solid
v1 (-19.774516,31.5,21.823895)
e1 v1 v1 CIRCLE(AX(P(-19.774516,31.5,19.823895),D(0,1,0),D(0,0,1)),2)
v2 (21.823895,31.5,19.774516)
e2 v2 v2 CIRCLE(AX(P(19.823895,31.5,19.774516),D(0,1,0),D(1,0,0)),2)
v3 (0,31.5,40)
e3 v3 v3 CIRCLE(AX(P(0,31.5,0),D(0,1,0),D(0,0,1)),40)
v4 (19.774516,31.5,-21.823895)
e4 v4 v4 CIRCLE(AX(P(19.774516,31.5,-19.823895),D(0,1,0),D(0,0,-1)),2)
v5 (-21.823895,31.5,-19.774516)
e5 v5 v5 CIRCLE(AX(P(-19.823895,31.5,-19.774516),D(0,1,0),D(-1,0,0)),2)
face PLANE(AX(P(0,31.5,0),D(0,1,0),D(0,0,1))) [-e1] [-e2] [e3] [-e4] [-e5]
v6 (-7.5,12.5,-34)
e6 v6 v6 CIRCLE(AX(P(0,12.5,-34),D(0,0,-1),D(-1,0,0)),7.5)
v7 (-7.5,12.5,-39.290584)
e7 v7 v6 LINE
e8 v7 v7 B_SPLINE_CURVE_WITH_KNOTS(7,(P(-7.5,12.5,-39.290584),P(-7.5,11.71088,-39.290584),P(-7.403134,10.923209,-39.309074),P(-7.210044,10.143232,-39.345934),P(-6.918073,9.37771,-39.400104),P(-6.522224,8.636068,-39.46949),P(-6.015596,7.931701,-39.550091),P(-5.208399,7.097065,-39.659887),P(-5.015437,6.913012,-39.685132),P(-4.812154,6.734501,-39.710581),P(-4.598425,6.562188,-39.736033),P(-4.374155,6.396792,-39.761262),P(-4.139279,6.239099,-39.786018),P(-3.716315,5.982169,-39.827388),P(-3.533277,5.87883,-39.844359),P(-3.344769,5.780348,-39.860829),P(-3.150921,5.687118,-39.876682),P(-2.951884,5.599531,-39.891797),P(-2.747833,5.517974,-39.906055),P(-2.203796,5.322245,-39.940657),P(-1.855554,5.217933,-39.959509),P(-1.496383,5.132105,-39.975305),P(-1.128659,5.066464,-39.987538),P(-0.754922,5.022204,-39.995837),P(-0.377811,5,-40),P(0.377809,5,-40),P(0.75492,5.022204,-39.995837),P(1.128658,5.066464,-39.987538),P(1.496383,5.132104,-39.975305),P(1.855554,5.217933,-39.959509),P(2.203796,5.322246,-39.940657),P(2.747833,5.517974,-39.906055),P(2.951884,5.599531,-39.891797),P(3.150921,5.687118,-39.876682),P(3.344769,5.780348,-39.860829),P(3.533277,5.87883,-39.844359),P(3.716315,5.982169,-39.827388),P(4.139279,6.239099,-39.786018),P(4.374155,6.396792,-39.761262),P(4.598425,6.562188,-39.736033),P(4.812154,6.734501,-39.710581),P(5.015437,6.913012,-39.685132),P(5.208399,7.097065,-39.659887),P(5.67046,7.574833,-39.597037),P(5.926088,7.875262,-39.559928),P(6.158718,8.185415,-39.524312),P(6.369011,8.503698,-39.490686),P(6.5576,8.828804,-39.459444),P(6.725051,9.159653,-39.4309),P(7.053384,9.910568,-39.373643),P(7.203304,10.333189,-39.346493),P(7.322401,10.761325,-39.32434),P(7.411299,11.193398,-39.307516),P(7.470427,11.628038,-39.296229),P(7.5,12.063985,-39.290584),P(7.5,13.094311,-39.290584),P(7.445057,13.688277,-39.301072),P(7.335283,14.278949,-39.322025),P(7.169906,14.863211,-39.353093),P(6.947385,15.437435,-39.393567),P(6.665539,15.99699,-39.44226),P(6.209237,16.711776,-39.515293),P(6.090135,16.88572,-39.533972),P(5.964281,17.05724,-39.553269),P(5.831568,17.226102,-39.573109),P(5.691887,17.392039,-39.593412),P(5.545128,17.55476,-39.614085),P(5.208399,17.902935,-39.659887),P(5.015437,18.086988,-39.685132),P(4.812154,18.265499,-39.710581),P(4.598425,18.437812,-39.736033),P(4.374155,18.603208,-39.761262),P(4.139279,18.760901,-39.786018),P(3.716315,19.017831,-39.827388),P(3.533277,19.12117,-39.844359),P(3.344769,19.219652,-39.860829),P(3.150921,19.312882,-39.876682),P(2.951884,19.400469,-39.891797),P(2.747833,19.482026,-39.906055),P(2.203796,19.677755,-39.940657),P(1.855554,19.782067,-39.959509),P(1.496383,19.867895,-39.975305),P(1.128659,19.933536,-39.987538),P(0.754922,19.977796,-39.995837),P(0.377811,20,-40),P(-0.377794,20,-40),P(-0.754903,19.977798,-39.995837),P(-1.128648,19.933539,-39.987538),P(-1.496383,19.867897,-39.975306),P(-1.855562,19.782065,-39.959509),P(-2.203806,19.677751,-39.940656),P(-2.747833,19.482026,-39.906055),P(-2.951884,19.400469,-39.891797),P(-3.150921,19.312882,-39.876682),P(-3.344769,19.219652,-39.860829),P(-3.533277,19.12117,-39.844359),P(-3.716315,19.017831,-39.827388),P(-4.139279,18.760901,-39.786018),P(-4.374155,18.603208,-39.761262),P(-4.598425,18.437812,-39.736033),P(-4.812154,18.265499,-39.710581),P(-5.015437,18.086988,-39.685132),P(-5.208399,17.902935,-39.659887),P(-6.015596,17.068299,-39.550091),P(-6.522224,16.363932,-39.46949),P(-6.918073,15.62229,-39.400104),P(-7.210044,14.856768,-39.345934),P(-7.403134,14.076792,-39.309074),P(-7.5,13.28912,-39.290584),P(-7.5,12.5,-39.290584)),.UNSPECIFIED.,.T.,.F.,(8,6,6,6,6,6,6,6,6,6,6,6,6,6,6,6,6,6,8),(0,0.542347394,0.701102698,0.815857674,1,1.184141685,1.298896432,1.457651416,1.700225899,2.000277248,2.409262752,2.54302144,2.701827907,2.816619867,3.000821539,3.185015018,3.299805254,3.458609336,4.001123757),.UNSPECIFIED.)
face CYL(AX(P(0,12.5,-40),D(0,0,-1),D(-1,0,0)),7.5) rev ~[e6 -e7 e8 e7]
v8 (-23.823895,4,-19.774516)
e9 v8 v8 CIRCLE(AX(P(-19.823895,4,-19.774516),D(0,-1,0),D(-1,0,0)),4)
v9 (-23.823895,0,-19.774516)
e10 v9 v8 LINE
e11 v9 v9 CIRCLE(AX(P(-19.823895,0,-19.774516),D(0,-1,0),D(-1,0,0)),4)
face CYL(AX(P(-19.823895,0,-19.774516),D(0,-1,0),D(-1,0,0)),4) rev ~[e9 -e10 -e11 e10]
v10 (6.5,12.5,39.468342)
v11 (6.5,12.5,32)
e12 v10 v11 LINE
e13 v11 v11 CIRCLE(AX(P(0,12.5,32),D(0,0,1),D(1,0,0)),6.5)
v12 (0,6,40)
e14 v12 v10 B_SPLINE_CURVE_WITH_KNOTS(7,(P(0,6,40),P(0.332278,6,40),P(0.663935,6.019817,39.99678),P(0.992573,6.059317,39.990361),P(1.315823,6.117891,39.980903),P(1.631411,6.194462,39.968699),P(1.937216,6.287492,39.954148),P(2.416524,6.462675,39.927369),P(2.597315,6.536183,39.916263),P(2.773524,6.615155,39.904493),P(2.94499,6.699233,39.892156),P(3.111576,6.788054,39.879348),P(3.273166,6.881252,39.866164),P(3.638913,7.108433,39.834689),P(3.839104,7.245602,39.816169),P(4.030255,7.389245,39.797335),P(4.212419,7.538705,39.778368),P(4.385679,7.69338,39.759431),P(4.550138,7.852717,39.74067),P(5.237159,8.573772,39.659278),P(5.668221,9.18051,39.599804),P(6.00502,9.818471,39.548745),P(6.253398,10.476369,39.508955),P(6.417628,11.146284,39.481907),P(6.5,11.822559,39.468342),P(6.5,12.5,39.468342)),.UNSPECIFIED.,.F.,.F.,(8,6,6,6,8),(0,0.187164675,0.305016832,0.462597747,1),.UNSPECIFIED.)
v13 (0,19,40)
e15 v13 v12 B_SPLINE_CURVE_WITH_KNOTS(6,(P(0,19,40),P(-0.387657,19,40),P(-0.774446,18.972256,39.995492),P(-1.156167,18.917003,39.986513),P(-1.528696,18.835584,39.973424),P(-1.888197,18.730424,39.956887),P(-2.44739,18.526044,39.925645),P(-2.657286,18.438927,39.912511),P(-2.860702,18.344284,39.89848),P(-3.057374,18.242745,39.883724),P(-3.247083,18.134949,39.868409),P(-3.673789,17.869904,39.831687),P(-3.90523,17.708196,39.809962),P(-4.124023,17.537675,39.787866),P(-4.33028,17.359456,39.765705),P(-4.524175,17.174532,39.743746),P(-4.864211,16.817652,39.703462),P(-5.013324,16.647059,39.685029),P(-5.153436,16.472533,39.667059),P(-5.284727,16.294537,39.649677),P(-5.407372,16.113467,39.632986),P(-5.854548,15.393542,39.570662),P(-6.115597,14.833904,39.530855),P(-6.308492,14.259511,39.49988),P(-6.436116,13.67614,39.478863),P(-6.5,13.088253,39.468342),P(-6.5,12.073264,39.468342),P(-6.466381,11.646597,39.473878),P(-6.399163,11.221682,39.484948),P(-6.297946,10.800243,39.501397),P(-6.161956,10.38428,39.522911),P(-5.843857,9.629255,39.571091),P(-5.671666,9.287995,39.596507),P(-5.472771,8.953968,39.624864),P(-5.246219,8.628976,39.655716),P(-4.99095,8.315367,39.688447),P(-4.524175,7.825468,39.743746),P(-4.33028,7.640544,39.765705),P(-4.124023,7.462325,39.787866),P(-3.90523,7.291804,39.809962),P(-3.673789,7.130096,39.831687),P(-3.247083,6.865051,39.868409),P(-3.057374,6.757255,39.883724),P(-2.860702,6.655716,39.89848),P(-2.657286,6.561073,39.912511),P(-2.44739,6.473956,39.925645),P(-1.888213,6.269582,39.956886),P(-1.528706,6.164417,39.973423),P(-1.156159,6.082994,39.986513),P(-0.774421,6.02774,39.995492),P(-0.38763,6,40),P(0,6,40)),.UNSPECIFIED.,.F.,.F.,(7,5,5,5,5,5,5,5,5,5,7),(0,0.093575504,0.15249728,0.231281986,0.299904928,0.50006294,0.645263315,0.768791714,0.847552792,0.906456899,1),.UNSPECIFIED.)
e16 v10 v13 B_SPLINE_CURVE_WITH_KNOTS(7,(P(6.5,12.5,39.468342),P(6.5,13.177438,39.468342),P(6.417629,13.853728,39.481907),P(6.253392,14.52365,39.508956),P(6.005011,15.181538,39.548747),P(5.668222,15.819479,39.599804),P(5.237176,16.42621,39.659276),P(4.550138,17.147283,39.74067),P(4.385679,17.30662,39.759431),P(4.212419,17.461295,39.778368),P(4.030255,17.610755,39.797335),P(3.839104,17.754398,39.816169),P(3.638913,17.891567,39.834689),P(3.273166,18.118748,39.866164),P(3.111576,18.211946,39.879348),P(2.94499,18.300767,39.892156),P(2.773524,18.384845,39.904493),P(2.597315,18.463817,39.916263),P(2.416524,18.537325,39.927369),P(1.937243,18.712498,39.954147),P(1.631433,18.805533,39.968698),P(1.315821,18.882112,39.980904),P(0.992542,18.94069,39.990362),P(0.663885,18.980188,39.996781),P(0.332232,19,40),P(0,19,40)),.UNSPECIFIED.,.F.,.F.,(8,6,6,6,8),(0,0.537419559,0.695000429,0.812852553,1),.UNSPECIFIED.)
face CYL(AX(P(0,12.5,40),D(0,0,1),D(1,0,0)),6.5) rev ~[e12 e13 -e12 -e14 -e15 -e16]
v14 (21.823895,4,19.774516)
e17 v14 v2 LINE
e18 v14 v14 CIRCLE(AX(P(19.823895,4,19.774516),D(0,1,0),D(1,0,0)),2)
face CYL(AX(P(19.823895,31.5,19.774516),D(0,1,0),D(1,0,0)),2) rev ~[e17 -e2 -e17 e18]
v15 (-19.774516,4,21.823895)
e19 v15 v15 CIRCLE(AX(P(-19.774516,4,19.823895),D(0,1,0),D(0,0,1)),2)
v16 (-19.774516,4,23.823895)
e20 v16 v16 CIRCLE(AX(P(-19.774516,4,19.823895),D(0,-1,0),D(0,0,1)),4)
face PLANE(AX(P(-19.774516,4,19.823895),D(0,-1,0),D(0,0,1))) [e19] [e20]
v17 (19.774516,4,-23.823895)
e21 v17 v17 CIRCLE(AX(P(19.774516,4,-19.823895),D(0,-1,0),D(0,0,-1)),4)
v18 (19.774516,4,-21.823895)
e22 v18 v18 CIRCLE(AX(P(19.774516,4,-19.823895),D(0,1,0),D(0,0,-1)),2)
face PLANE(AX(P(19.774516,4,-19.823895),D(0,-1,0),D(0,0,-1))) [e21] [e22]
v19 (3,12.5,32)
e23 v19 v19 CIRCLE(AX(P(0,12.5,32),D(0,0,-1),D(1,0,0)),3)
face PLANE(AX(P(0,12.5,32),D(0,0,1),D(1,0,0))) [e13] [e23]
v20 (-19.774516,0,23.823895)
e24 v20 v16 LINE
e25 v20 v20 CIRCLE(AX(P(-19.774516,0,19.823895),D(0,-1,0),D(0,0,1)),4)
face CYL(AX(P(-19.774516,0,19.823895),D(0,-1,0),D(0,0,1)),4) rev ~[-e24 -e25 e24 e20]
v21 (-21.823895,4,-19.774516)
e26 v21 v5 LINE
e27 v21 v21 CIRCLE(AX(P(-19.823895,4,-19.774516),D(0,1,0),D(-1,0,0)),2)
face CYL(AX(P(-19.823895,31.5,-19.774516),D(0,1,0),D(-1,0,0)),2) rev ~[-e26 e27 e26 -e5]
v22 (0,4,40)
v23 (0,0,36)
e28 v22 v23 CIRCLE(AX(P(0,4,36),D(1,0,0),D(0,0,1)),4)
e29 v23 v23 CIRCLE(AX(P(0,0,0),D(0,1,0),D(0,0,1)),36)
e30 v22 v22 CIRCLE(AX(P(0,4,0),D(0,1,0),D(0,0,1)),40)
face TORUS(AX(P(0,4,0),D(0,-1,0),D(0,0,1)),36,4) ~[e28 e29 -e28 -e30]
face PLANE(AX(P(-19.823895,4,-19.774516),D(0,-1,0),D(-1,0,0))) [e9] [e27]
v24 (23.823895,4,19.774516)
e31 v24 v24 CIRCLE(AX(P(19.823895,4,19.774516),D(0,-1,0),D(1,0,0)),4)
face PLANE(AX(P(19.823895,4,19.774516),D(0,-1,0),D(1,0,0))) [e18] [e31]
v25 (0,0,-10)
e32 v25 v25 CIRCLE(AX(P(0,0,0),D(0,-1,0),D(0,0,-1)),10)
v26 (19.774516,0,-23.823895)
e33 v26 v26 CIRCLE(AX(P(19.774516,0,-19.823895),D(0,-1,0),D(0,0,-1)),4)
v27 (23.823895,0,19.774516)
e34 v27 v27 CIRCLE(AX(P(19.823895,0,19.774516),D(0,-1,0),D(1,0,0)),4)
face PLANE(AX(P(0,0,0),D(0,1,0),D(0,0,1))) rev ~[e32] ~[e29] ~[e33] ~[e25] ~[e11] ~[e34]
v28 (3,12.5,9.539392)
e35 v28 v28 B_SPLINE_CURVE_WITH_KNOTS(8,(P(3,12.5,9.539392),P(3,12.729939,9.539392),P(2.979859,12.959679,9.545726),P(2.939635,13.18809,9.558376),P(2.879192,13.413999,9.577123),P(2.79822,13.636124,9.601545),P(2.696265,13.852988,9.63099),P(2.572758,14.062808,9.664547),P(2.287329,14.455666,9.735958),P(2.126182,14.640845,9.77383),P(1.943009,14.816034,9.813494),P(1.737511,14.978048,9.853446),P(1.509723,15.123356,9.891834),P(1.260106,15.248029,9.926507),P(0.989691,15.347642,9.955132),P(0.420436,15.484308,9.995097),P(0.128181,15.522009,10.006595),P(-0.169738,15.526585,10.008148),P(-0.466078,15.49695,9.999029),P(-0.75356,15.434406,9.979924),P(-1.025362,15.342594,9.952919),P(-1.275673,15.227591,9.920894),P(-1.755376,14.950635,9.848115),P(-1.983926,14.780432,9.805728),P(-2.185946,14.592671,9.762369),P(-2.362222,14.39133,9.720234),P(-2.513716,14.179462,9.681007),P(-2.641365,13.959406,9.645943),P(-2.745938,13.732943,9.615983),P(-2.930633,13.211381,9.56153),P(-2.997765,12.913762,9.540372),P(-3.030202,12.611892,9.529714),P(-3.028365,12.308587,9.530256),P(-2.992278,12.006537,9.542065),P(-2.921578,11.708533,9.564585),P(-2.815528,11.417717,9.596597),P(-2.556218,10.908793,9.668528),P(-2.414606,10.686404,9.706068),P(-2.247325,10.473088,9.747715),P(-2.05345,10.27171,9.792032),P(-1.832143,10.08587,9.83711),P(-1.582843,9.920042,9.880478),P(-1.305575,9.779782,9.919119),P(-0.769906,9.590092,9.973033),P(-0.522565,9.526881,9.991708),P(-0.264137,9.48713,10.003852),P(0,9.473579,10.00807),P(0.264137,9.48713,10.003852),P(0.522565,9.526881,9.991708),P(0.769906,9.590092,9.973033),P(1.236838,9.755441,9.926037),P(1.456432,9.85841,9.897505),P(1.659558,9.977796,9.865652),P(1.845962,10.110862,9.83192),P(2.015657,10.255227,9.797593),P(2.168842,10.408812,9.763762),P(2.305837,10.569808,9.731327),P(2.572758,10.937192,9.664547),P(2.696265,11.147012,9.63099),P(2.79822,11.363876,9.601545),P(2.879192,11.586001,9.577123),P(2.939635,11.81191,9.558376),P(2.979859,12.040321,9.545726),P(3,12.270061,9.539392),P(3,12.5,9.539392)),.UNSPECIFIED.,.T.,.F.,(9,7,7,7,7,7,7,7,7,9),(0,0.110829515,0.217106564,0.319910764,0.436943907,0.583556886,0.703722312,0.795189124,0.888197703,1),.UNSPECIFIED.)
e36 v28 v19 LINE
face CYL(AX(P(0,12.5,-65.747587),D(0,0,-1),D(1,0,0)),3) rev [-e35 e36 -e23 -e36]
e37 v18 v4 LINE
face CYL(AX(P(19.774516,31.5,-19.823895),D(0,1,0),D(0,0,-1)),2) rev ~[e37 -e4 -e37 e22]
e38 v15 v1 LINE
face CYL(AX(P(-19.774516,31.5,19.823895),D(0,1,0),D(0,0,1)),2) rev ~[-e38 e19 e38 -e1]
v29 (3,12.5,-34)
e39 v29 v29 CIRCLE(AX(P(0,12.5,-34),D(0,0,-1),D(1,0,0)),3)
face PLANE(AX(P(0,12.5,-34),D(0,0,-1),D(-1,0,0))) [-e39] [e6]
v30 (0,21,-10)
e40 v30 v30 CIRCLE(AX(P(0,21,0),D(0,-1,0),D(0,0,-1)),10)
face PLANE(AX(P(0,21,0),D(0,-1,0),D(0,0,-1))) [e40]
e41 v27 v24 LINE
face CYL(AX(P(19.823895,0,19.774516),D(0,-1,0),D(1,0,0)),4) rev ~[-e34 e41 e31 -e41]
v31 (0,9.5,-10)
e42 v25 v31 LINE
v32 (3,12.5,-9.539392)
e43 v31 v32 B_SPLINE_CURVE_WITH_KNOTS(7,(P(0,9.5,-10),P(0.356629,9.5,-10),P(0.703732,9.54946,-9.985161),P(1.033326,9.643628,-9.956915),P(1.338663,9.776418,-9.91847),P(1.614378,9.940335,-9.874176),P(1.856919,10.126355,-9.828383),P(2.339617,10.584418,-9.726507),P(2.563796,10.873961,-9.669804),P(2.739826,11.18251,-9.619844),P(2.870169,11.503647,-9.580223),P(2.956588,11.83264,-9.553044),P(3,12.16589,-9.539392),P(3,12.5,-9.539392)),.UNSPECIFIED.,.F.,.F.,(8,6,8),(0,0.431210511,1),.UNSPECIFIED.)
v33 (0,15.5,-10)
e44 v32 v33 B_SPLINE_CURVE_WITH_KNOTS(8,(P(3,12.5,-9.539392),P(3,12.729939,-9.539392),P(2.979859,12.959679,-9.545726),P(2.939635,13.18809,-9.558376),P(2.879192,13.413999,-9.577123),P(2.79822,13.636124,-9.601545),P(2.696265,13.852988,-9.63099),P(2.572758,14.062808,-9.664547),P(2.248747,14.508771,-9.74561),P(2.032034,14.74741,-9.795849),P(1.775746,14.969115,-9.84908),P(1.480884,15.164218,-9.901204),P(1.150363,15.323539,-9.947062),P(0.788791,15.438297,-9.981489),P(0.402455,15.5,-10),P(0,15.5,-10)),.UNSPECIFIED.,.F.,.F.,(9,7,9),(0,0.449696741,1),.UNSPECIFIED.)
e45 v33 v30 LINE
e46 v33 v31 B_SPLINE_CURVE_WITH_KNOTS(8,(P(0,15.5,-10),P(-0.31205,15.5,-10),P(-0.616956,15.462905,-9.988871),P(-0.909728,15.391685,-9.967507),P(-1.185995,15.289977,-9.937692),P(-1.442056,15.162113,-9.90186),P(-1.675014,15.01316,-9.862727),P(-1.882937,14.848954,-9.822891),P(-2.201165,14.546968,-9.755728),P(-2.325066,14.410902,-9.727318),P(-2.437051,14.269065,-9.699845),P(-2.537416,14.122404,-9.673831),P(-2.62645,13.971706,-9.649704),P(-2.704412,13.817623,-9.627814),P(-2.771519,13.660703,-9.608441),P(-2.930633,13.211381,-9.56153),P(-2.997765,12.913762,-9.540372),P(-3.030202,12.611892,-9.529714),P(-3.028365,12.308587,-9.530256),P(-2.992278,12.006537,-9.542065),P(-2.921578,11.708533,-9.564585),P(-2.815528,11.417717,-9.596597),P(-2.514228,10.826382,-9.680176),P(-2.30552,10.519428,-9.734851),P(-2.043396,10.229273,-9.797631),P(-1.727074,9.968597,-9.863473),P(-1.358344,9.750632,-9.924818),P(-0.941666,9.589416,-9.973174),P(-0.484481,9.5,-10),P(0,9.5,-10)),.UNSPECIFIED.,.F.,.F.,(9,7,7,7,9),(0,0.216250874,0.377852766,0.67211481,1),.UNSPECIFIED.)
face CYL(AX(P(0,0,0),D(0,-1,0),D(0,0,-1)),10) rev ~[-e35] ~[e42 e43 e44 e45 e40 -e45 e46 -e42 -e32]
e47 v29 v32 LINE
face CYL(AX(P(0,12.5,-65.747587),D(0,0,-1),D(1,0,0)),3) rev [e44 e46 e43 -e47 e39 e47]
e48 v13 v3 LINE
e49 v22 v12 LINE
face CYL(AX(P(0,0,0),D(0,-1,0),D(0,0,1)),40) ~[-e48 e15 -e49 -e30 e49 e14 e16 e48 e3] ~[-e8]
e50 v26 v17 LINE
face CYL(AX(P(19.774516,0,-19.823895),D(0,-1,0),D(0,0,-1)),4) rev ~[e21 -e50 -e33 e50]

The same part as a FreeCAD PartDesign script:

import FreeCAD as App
import Part
import Sketcher
from FreeCAD import Vector
Q = App.Units.Quantity


def edges_at(feature, points):
    """Names of the edges that pass closest to the given points."""
    edges = feature.Shape.Edges
    near = lambda p: min(range(len(edges)), key=lambda i: edges[i].distToShape(Part.Vertex(*p))[0])
    return sorted({f"Edge{near(p) + 1}" for p in points})

doc = App.newDocument("Part")
params = doc.addObject("Spreadsheet::Sheet", "Params")
for row, (alias, value) in enumerate([
    ("sketch1_diameter", "80 mm"),
    ("pad1_length", "31.5 mm"),
    ("sketch2_diameter", "6 mm"),
    ("sketch3_diameter", "20 mm"),
    ("pocket2_length", "21 mm"),
    ("sketch4_diameter", "13 mm"),
    ("pocket3_length", "8 mm"),
    ("sketch5_diameter", "15 mm"),
    ("pocket4_length", "6 mm"),
    ("sketch6_diameter", "4 mm"),
    ("pocket5_length", "131.495174 mm"),
    ("sketch7_diameter", "8 mm"),
    ("pocket6_length", "4 mm"),
    ("fillet_radius", "4 mm"),
], start=1):
    params.set(f"A{row}", alias)
    params.set(f"B{row}", "=" + value)
    params.setAlias(f"B{row}", alias)

body = doc.addObject("PartDesign::Body", "Body")

# Sketch on XZ plane
sketch1 = doc.addObject("Sketcher::SketchObject", "Sketch")
body.addObject(sketch1)
sketch1.AttachmentSupport = (doc.XZ_Plane, [""])
sketch1.MapMode = "FlatFace"
sketch1.addGeometry(Part.Circle(Vector(0, 0, 0), Vector(0, 0, 1), 40), False)
sketch1.addConstraint(Sketcher.Constraint("Coincident", 0, 3, -1, 1))
sketch1.addConstraint(Sketcher.Constraint("Diameter", 0, Q("80 mm")))
sketch1.setExpression("Constraints[1]", "Params.sketch1_diameter")
pad1 = doc.addObject("PartDesign::Pad", "Pad")
body.addObject(pad1)
pad1.Profile = sketch1
pad1.setExpression("Length", "Params.pad1_length")
pad1.Reversed = True

# Sketch on XY plane
sketch2 = doc.addObject("Sketcher::SketchObject", "Sketch001")
body.addObject(sketch2)
sketch2.AttachmentSupport = (doc.XY_Plane, [""])
sketch2.MapMode = "FlatFace"
sketch2.addGeometry(Part.Circle(Vector(0, 12.5, 0), Vector(0, 0, 1), 3), False)
sketch2.addConstraint(Sketcher.Constraint("PointOnObject", 0, 3, -2))
sketch2.addConstraint(Sketcher.Constraint("Diameter", 0, Q("6 mm")))
sketch2.addConstraint(Sketcher.Constraint("DistanceY", -1, 1, 0, 3, Q("12.5 mm")))
sketch2.setExpression("Constraints[1]", "Params.sketch2_diameter")
pocket1 = doc.addObject("PartDesign::Pocket", "Pocket")
body.addObject(pocket1)
pocket1.Profile = sketch2
pocket1.Type = "ThroughAll"
pocket1.Midplane = True

# Sketch on XZ plane
sketch3 = doc.addObject("Sketcher::SketchObject", "Sketch002")
body.addObject(sketch3)
sketch3.AttachmentSupport = (doc.XZ_Plane, [""])
sketch3.MapMode = "FlatFace"
sketch3.addGeometry(Part.Circle(Vector(0, 0, 0), Vector(0, 0, 1), 10), False)
sketch3.addConstraint(Sketcher.Constraint("Coincident", 0, 3, -1, 1))
sketch3.addConstraint(Sketcher.Constraint("Diameter", 0, Q("20 mm")))
sketch3.setExpression("Constraints[1]", "Params.sketch3_diameter")
pocket2 = doc.addObject("PartDesign::Pocket", "Pocket001")
body.addObject(pocket2)
pocket2.Profile = sketch3
pocket2.setExpression("Length", "Params.pocket2_length")

# Sketch on XY plane
sketch4 = doc.addObject("Sketcher::SketchObject", "Sketch003")
body.addObject(sketch4)
sketch4.AttachmentSupport = (doc.XY_Plane, [""])
sketch4.MapMode = "FlatFace"
sketch4.AttachmentOffset = App.Placement(Vector(0, 0, 40), App.Rotation())
sketch4.addGeometry(Part.Circle(Vector(0, 12, 0), Vector(0, 0, 1), 6), False)
sketch4.addConstraint(Sketcher.Constraint("PointOnObject", 0, 3, -2))
sketch4.addConstraint(Sketcher.Constraint("Diameter", 0, Q("13 mm")))
sketch4.addConstraint(Sketcher.Constraint("DistanceY", -1, 1, 0, 3, Q("12.5 mm")))
sketch4.setExpression("Constraints[1]", "Params.sketch4_diameter")
pocket3 = doc.addObject("PartDesign::Pocket", "Pocket002")
body.addObject(pocket3)
pocket3.Profile = sketch4
pocket3.setExpression("Length", "Params.pocket3_length")

# Sketch on XY plane
sketch5 = doc.addObject("Sketcher::SketchObject", "Sketch004")
body.addObject(sketch5)
sketch5.AttachmentSupport = (doc.XY_Plane, [""])
sketch5.MapMode = "FlatFace"
sketch5.AttachmentOffset = App.Placement(Vector(0, 0, -40), App.Rotation())
sketch5.addGeometry(Part.Circle(Vector(0, 12, 0), Vector(0, 0, 1), 8), False)
sketch5.addConstraint(Sketcher.Constraint("PointOnObject", 0, 3, -2))
sketch5.addConstraint(Sketcher.Constraint("Diameter", 0, Q("15 mm")))
sketch5.addConstraint(Sketcher.Constraint("DistanceY", -1, 1, 0, 3, Q("12.5 mm")))
sketch5.setExpression("Constraints[1]", "Params.sketch5_diameter")
pocket4 = doc.addObject("PartDesign::Pocket", "Pocket003")
body.addObject(pocket4)
pocket4.Profile = sketch5
pocket4.setExpression("Length", "Params.pocket4_length")
pocket4.Reversed = True

# Sketch on XZ plane
sketch6 = doc.addObject("Sketcher::SketchObject", "Sketch005")
body.addObject(sketch6)
sketch6.AttachmentSupport = (doc.XZ_Plane, [""])
sketch6.MapMode = "FlatFace"
sketch6.AttachmentOffset = App.Placement(Vector(0, 0, -31.5), App.Rotation())
sketch6.addGeometry(Part.Circle(Vector(-19.8, 19.8, 0), Vector(0, 0, 1), 2), False)
sketch6.addConstraint(Sketcher.Constraint("Diameter", 0, Q("4 mm")))
sketch6.addConstraint(Sketcher.Constraint("DistanceX", 0, 3, -1, 1, Q("19.774516 mm")))
sketch6.addConstraint(Sketcher.Constraint("DistanceY", -1, 1, 0, 3, Q("19.823895 mm")))
sketch6.setExpression("Constraints[0]", "Params.sketch6_diameter")
pocket5 = doc.addObject("PartDesign::Pocket", "Pocket004")
body.addObject(pocket5)
pocket5.Profile = sketch6
pocket5.setExpression("Length", "Params.pocket5_length")
pocket5.Midplane = True
doc.recompute()

polarpattern = doc.addObject("PartDesign::PolarPattern", "PolarPattern")
body.addObject(polarpattern)
polarpattern.Originals = [pocket5]
polarpattern.Axis = (doc.Y_Axis, [""])
polarpattern.Angle = 360
polarpattern.Occurrences = 4
body.Tip = polarpattern

# Sketch on XZ plane
sketch7 = doc.addObject("Sketcher::SketchObject", "Sketch006")
body.addObject(sketch7)
sketch7.AttachmentSupport = (doc.XZ_Plane, [""])
sketch7.MapMode = "FlatFace"
sketch7.addGeometry(Part.Circle(Vector(19.8, -19.8, 0), Vector(0, 0, 1), 4), False)
sketch7.addConstraint(Sketcher.Constraint("Diameter", 0, Q("8 mm")))
sketch7.addConstraint(Sketcher.Constraint("DistanceX", -1, 1, 0, 3, Q("19.774516 mm")))
sketch7.addConstraint(Sketcher.Constraint("DistanceY", 0, 3, -1, 1, Q("19.823895 mm")))
sketch7.setExpression("Constraints[0]", "Params.sketch7_diameter")
pocket6 = doc.addObject("PartDesign::Pocket", "Pocket005")
body.addObject(pocket6)
pocket6.Profile = sketch7
pocket6.setExpression("Length", "Params.pocket6_length")
doc.recompute()

polarpattern2 = doc.addObject("PartDesign::PolarPattern", "PolarPattern001")
body.addObject(polarpattern2)
polarpattern2.Originals = [pocket6]
polarpattern2.Axis = (doc.Y_Axis, [""])
polarpattern2.Angle = 360
polarpattern2.Occurrences = 4
body.Tip = polarpattern2
doc.recompute()

fillet = doc.addObject("PartDesign::Fillet", "Fillet")
body.addObject(fillet)
fillet.Base = (polarpattern2, edges_at(polarpattern2, [(0, 0, -40)]))
fillet.setExpression("Radius", "Params.fillet_radius")

doc.recompute()
